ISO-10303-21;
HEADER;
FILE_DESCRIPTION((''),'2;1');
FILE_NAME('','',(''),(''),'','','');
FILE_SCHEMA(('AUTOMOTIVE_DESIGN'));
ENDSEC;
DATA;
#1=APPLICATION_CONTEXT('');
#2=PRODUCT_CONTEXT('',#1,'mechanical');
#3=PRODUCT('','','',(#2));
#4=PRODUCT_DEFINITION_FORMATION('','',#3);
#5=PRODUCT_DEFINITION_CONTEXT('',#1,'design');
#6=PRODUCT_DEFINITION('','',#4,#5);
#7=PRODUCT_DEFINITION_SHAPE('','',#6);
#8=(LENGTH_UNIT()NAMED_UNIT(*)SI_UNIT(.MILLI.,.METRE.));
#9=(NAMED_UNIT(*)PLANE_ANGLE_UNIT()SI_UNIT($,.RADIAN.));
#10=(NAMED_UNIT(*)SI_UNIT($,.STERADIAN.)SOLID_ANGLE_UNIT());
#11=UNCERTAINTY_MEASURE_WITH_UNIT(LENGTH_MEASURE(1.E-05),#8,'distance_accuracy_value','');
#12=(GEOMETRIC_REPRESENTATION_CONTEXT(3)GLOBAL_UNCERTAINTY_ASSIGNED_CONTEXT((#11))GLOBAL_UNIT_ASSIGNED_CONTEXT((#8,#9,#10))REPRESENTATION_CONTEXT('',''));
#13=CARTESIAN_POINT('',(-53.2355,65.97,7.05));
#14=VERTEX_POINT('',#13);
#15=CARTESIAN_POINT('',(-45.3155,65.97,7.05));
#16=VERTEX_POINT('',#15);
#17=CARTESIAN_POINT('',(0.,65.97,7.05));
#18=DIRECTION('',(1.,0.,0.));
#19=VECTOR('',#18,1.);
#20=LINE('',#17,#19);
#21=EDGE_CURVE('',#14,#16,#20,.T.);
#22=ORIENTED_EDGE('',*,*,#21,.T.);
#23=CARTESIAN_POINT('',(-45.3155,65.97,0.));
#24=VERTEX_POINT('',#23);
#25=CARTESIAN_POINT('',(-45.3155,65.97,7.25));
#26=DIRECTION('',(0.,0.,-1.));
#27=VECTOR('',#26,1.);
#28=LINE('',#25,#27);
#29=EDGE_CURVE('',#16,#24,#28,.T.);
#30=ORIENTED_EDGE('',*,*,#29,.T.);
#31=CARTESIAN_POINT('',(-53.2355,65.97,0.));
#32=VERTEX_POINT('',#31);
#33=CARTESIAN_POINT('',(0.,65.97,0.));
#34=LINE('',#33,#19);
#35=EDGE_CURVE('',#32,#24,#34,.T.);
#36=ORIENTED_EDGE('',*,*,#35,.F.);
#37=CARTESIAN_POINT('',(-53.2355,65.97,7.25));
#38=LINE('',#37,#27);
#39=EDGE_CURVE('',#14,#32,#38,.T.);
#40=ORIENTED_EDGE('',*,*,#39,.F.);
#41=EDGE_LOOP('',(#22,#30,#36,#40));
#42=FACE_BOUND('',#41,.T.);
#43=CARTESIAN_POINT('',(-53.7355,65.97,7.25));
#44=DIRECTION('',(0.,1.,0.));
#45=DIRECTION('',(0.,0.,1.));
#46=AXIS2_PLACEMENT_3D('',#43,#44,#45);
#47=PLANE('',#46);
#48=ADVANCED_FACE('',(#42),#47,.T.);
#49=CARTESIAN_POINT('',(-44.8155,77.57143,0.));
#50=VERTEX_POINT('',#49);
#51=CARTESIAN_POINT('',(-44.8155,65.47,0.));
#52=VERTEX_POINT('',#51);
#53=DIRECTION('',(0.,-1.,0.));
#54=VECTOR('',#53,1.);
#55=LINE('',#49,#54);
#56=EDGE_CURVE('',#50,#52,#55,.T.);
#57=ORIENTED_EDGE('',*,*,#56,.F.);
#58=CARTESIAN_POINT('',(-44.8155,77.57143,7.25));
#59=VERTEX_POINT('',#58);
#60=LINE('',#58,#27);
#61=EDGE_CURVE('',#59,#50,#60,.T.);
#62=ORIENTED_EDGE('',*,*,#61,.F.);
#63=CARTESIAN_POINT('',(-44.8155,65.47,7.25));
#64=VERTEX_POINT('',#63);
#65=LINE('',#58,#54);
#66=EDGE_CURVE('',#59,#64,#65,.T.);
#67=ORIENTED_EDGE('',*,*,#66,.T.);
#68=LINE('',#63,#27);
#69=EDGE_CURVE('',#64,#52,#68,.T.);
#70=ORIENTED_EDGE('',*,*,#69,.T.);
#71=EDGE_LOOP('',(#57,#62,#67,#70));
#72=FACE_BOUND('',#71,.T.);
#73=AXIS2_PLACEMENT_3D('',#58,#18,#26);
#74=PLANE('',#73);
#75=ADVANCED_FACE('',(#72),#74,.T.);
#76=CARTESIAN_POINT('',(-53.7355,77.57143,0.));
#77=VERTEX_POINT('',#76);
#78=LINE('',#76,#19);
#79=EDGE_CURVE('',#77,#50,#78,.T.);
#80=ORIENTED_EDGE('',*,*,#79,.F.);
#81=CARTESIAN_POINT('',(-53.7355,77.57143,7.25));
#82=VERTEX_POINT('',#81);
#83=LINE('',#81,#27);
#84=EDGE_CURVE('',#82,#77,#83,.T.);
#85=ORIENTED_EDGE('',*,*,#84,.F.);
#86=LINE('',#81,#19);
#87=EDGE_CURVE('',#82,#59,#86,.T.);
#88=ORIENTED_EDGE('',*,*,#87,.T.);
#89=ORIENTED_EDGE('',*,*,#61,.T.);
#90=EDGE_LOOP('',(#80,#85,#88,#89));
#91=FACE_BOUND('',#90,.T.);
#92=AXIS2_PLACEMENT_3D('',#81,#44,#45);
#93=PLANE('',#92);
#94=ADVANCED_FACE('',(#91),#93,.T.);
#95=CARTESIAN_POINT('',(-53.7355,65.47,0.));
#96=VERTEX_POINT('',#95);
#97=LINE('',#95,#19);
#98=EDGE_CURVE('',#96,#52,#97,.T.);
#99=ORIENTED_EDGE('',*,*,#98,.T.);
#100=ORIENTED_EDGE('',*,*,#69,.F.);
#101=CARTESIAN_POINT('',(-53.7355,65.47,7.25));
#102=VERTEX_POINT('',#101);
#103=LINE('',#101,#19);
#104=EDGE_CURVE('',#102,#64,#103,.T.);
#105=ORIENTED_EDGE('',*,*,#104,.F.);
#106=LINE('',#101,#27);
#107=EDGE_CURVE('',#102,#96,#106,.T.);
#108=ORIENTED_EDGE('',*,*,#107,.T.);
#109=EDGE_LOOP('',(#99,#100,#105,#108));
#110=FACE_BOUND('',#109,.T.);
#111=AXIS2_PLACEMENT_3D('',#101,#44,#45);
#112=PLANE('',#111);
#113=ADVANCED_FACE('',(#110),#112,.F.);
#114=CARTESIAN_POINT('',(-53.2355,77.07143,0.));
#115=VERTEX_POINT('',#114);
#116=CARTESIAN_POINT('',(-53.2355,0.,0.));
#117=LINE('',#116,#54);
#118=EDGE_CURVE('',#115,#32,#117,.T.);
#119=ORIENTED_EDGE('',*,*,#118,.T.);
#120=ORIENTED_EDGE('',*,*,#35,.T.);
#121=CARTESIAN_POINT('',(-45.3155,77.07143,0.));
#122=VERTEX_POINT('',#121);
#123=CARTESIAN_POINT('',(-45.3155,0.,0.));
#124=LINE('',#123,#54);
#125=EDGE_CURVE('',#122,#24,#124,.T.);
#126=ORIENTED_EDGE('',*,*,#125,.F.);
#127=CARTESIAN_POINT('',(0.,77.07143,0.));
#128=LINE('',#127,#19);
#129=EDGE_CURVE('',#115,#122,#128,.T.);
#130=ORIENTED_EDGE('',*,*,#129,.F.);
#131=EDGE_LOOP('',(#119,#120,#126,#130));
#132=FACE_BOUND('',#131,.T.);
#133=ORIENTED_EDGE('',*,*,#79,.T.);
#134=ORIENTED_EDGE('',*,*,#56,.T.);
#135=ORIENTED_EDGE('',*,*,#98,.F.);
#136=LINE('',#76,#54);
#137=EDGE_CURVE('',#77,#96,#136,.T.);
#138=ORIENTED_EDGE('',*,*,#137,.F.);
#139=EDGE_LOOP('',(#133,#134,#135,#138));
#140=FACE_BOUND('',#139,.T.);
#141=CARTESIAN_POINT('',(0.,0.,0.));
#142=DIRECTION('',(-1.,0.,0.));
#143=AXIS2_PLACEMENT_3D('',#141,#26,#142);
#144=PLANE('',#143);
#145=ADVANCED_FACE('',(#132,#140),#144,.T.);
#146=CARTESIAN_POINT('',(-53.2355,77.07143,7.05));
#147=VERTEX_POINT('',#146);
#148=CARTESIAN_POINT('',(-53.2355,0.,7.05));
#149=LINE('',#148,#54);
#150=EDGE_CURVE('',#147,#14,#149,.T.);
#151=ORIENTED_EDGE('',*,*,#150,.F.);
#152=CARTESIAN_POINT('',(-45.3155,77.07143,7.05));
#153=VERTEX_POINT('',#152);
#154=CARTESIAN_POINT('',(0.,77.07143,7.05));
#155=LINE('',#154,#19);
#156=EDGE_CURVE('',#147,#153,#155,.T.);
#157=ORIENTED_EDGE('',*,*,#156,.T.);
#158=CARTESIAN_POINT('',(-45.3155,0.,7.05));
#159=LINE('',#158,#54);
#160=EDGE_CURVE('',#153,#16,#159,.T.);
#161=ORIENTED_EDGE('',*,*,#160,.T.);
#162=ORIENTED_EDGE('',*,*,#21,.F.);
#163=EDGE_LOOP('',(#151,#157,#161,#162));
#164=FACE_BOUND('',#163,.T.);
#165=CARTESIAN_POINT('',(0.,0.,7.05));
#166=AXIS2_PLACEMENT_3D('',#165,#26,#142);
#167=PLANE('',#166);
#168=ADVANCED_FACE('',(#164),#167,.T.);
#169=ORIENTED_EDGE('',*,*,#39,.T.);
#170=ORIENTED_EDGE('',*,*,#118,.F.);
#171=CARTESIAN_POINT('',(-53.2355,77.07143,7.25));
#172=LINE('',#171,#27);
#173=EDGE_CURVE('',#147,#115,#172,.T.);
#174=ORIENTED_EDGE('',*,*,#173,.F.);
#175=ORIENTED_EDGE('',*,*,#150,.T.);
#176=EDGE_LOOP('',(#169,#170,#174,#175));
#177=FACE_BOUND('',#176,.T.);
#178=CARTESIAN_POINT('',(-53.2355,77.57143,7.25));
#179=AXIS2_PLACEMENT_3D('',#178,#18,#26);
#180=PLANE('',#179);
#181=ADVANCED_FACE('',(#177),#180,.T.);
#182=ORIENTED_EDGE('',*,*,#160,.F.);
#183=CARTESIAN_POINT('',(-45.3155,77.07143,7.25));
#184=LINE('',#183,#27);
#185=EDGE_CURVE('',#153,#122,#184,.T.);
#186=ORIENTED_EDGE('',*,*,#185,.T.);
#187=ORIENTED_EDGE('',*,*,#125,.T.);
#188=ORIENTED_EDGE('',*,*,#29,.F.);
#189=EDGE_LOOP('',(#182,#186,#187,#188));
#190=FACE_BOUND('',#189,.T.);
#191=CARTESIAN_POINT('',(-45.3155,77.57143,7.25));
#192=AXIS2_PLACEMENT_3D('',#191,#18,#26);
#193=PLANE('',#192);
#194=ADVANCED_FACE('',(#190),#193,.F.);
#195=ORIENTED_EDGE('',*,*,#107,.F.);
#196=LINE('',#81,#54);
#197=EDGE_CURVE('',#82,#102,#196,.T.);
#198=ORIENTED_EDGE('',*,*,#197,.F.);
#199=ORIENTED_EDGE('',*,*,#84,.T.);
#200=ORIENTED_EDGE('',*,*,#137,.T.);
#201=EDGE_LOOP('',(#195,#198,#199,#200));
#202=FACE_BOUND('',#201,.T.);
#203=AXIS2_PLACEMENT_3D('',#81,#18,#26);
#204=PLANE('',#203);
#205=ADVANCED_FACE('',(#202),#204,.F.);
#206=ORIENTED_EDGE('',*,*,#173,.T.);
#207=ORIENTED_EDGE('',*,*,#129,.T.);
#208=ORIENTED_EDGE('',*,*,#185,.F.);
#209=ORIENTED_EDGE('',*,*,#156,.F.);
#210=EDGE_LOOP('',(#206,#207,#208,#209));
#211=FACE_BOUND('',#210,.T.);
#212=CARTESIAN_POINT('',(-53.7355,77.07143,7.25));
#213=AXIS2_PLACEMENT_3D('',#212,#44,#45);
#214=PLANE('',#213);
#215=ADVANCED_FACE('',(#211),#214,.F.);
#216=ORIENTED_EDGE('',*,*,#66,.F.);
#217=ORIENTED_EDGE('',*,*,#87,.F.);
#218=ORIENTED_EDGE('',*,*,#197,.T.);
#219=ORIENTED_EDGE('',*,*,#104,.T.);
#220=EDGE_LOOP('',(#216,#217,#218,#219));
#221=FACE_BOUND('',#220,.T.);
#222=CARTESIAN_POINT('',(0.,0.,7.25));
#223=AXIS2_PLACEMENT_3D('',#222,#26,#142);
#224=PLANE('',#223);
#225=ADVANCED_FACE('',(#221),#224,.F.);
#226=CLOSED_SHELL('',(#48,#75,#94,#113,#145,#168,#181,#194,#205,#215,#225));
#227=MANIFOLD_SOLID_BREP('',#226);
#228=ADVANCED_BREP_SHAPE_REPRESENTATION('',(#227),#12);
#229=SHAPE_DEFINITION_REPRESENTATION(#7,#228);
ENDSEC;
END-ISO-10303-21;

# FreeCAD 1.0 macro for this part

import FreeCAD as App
import Part
import Sketcher


def faces_at(feature, points):
    """Names of the faces that lie closest to the given points."""
    faces = feature.Shape.Faces
    near = lambda p: min(range(len(faces)), key=lambda i: faces[i].distToShape(Part.Vertex(*p))[0])
    return sorted({f"Face{near(p) + 1}" for p in points})

doc = App.newDocument("Part")
body = doc.addObject("PartDesign::Body", "Body")

# Sketch on XY plane
sketch1 = body.newObject("Sketcher::SketchObject", "Sketch")
sketch1.AttachmentSupport = (doc.getObject("XY_Plane"), [""])
sketch1.MapMode = "FlatFace"
sketch1.addGeometry(Part.LineSegment(App.Vector(-54, 78, 0), App.Vector(-54, 65, 0)), False)
sketch1.addGeometry(Part.LineSegment(App.Vector(-54, 65, 0), App.Vector(-45, 65, 0)), False)
sketch1.addGeometry(Part.LineSegment(App.Vector(-45, 65, 0), App.Vector(-45, 78, 0)), False)
sketch1.addGeometry(Part.LineSegment(App.Vector(-45, 78, 0), App.Vector(-54, 78, 0)), False)
sketch1.addConstraint(Sketcher.Constraint("Coincident", 0, 2, 1, 1))
sketch1.addConstraint(Sketcher.Constraint("Coincident", 1, 2, 2, 1))
sketch1.addConstraint(Sketcher.Constraint("Coincident", 2, 2, 3, 1))
sketch1.addConstraint(Sketcher.Constraint("Coincident", 3, 2, 0, 1))
sketch1.addConstraint(Sketcher.Constraint("Vertical", 0))
sketch1.addConstraint(Sketcher.Constraint("Horizontal", 1))
sketch1.addConstraint(Sketcher.Constraint("Vertical", 2))
sketch1.addConstraint(Sketcher.Constraint("Horizontal", 3))
sketch1.addConstraint(Sketcher.Constraint("DistanceX", 1, 1, 1, 2, 8.92))
sketch1.addConstraint(Sketcher.Constraint("DistanceY", -1, 1, 0, 2, 65.47))
sketch1.addConstraint(Sketcher.Constraint("DistanceY", 0, 2, 0, 1, 12.10143))
sketch1.addConstraint(Sketcher.Constraint("DistanceX", 0, 2, -1, 1, 53.7355))
pad1 = body.newObject("PartDesign::Pad", "Pad")
pad1.Profile = sketch1
pad1.Length = 7.25
doc.recompute()

thickness = body.newObject("PartDesign::Thickness", "Thickness")
thickness.Base = (pad1, faces_at(pad1, [(-49.276, 71.521, 0)]))
thickness.Value = 0.5
thickness.Reversed = True
thickness.Join = "Intersection"

# Sketch on XY plane
sketch2 = body.newObject("Sketcher::SketchObject", "Sketch001")
sketch2.AttachmentSupport = (doc.getObject("XY_Plane"), [""])
sketch2.MapMode = "FlatFace"
sketch2.AttachmentOffset = App.Placement(App.Vector(0, 0, 6.75), App.Rotation())
sketch2.addGeometry(Part.LineSegment(App.Vector(-53, 77, 0), App.Vector(-53, 66, 0)), False)
sketch2.addGeometry(Part.LineSegment(App.Vector(-53, 66, 0), App.Vector(-45, 66, 0)), False)
sketch2.addGeometry(Part.LineSegment(App.Vector(-45, 66, 0), App.Vector(-45, 77, 0)), False)
sketch2.addGeometry(Part.LineSegment(App.Vector(-45, 77, 0), App.Vector(-53, 77, 0)), False)
sketch2.addConstraint(Sketcher.Constraint("Coincident", 0, 2, 1, 1))
sketch2.addConstraint(Sketcher.Constraint("Coincident", 1, 2, 2, 1))
sketch2.addConstraint(Sketcher.Constraint("Coincident", 2, 2, 3, 1))
sketch2.addConstraint(Sketcher.Constraint("Coincident", 3, 2, 0, 1))
sketch2.addConstraint(Sketcher.Constraint("Vertical", 0))
sketch2.addConstraint(Sketcher.Constraint("Horizontal", 1))
sketch2.addConstraint(Sketcher.Constraint("Vertical", 2))
sketch2.addConstraint(Sketcher.Constraint("Horizontal", 3))
sketch2.addConstraint(Sketcher.Constraint("DistanceX", 1, 1, 1, 2, 7.92))
sketch2.addConstraint(Sketcher.Constraint("DistanceY", -1, 1, 0, 2, 65.97))
sketch2.addConstraint(Sketcher.Constraint("DistanceY", 0, 2, 0, 1, 11.10143))
sketch2.addConstraint(Sketcher.Constraint("DistanceX", 0, 2, -1, 1, 53.2355))
pocket1 = body.newObject("PartDesign::Pocket", "Pocket")
pocket1.Profile = sketch2
pocket1.Length = 0.3
pocket1.Reversed = True

doc.recompute()
